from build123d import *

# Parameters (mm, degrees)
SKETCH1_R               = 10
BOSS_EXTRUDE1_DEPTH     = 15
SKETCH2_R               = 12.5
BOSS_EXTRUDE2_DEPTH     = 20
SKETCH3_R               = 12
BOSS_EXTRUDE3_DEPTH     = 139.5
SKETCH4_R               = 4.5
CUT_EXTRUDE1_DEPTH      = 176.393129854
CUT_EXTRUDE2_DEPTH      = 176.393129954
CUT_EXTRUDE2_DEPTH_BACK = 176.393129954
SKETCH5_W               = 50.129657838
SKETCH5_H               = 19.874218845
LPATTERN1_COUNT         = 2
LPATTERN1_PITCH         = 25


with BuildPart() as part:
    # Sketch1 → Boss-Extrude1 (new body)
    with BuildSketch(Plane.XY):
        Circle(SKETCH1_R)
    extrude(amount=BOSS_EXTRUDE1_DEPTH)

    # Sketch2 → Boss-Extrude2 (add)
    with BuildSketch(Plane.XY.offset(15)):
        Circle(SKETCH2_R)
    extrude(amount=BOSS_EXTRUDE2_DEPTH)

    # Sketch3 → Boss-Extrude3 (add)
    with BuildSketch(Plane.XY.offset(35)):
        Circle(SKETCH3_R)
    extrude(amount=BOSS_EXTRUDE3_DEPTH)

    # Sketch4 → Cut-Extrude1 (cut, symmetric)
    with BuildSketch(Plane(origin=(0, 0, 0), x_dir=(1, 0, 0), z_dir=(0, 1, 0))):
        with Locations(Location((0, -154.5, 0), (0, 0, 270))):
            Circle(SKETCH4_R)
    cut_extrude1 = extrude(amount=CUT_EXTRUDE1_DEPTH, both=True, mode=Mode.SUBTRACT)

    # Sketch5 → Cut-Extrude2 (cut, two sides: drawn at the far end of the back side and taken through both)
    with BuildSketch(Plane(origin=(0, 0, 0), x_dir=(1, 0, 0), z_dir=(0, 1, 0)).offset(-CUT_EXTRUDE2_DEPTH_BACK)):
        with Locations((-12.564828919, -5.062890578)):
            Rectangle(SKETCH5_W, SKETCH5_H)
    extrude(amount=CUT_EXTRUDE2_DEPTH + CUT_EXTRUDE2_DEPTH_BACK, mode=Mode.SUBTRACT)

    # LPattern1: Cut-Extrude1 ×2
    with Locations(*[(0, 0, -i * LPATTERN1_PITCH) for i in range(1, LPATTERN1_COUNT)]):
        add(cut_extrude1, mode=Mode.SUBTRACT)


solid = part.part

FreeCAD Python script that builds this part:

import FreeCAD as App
import Part
import Sketcher
from FreeCAD import Vector


def add_polygon(sketch, points):
    """Adds a closed chain of lines whose ends are joined by coincident constraints."""
    first, n = sketch.GeometryCount, len(points)
    for a, b in zip(points, points[1:] + points[:1]):
        sketch.addGeometry(Part.LineSegment(App.Vector(*a, 0), App.Vector(*b, 0)), False)
    for i in range(n):
        sketch.addConstraint(Sketcher.Constraint("Coincident", first + i, 2, first + (i + 1) % n, 1))

doc = App.newDocument("Part")
body = doc.addObject("PartDesign::Body", "Body")

# Sketch on XY plane
sketch1 = body.newObject("Sketcher::SketchObject", "Sketch")
sketch1.AttachmentSupport = (doc.getObject("XY_Plane"), [""])
sketch1.MapMode = "FlatFace"
sketch1.addGeometry(Part.Circle(Vector(0, 0, 0), Vector(0, 0, 1), 10), False)
sketch1.addConstraint([
    Sketcher.Constraint("Coincident", 0, 3, -1, 1),
    Sketcher.Constraint("Diameter", 0, 20.0),
])
pad1 = body.newObject("PartDesign::Pad", "Pad")
pad1.Profile = sketch1
pad1.Length = 15

# Sketch on XY plane
sketch2 = body.newObject("Sketcher::SketchObject", "Sketch001")
sketch2.AttachmentSupport = (doc.getObject("XY_Plane"), [""])
sketch2.MapMode = "FlatFace"
sketch2.AttachmentOffset = App.Placement(Vector(0, 0, 15), App.Rotation())
sketch2.addGeometry(Part.Circle(Vector(0, 0, 0), Vector(0, 0, 1), 12.5), False)
sketch2.addConstraint([
    Sketcher.Constraint("Coincident", 0, 3, -1, 1),
    Sketcher.Constraint("Diameter", 0, 25.0),
])
pad2 = body.newObject("PartDesign::Pad", "Pad001")
pad2.Profile = sketch2
pad2.Length = 20

# Sketch on XY plane
sketch3 = body.newObject("Sketcher::SketchObject", "Sketch002")
sketch3.AttachmentSupport = (doc.getObject("XY_Plane"), [""])
sketch3.MapMode = "FlatFace"
sketch3.AttachmentOffset = App.Placement(Vector(0, 0, 35), App.Rotation())
sketch3.addGeometry(Part.Circle(Vector(0, 0, 0), Vector(0, 0, 1), 12), False)
sketch3.addConstraint([
    Sketcher.Constraint("Coincident", 0, 3, -1, 1),
    Sketcher.Constraint("Diameter", 0, 24.0),
])
pad3 = body.newObject("PartDesign::Pad", "Pad002")
pad3.Profile = sketch3
pad3.Length = 139.5

# Sketch on XZ plane
sketch4 = body.newObject("Sketcher::SketchObject", "Sketch003")
sketch4.AttachmentSupport = (doc.getObject("XZ_Plane"), [""])
sketch4.MapMode = "FlatFace"
sketch4.addGeometry(Part.Circle(Vector(0, 154.5, 0), Vector(0, 0, 1), 4.5), False)
sketch4.addConstraint([
    Sketcher.Constraint("PointOnObject", 0, 3, -2),
    Sketcher.Constraint("Diameter", 0, 9.0),
    Sketcher.Constraint("DistanceY", -1, 1, 0, 3, 154.5),
])
pocket1 = body.newObject("PartDesign::Pocket", "Pocket")
pocket1.Profile = sketch4
pocket1.Length = 352.78626
pocket1.Midplane = True

# Sketch on XZ plane
sketch5 = body.newObject("Sketcher::SketchObject", "Sketch004")
sketch5.AttachmentSupport = (doc.getObject("XZ_Plane"), [""])
sketch5.MapMode = "FlatFace"
add_polygon(sketch5, [(-37.629658, -4.874219), (-37.629658, 15), (12.5, 15), (12.5, -4.874219)])  # lines 0-3
sketch5.addConstraint([
    Sketcher.Constraint("Vertical", 0),
    Sketcher.Constraint("Horizontal", 1),
    Sketcher.Constraint("Vertical", 2),
    Sketcher.Constraint("Horizontal", 3),
    Sketcher.Constraint("DistanceY", -1, 1, 0, 2, 15.0),
    Sketcher.Constraint("DistanceX", -1, 1, 1, 2, 12.5),
    Sketcher.Constraint("DistanceY", 0, 1, 0, 2, 19.874219),
    Sketcher.Constraint("DistanceX", 1, 1, 1, 2, 50.129658),
])
pocket2 = body.newObject("PartDesign::Pocket", "Pocket001")
pocket2.Profile = sketch5
pocket2.Type = "ThroughAll"
pocket2.Midplane = True
doc.recompute()

linearpattern = body.newObject("PartDesign::LinearPattern", "LinearPattern")
linearpattern.Originals = [pocket1]
linearpattern.Direction = (doc.getObject("Z_Axis"), [""])
linearpattern.Mode = "offset"
linearpattern.Offset = 25
linearpattern.Occurrences = 2
linearpattern.Reversed = True
body.Tip = linearpattern

doc.recompute()
